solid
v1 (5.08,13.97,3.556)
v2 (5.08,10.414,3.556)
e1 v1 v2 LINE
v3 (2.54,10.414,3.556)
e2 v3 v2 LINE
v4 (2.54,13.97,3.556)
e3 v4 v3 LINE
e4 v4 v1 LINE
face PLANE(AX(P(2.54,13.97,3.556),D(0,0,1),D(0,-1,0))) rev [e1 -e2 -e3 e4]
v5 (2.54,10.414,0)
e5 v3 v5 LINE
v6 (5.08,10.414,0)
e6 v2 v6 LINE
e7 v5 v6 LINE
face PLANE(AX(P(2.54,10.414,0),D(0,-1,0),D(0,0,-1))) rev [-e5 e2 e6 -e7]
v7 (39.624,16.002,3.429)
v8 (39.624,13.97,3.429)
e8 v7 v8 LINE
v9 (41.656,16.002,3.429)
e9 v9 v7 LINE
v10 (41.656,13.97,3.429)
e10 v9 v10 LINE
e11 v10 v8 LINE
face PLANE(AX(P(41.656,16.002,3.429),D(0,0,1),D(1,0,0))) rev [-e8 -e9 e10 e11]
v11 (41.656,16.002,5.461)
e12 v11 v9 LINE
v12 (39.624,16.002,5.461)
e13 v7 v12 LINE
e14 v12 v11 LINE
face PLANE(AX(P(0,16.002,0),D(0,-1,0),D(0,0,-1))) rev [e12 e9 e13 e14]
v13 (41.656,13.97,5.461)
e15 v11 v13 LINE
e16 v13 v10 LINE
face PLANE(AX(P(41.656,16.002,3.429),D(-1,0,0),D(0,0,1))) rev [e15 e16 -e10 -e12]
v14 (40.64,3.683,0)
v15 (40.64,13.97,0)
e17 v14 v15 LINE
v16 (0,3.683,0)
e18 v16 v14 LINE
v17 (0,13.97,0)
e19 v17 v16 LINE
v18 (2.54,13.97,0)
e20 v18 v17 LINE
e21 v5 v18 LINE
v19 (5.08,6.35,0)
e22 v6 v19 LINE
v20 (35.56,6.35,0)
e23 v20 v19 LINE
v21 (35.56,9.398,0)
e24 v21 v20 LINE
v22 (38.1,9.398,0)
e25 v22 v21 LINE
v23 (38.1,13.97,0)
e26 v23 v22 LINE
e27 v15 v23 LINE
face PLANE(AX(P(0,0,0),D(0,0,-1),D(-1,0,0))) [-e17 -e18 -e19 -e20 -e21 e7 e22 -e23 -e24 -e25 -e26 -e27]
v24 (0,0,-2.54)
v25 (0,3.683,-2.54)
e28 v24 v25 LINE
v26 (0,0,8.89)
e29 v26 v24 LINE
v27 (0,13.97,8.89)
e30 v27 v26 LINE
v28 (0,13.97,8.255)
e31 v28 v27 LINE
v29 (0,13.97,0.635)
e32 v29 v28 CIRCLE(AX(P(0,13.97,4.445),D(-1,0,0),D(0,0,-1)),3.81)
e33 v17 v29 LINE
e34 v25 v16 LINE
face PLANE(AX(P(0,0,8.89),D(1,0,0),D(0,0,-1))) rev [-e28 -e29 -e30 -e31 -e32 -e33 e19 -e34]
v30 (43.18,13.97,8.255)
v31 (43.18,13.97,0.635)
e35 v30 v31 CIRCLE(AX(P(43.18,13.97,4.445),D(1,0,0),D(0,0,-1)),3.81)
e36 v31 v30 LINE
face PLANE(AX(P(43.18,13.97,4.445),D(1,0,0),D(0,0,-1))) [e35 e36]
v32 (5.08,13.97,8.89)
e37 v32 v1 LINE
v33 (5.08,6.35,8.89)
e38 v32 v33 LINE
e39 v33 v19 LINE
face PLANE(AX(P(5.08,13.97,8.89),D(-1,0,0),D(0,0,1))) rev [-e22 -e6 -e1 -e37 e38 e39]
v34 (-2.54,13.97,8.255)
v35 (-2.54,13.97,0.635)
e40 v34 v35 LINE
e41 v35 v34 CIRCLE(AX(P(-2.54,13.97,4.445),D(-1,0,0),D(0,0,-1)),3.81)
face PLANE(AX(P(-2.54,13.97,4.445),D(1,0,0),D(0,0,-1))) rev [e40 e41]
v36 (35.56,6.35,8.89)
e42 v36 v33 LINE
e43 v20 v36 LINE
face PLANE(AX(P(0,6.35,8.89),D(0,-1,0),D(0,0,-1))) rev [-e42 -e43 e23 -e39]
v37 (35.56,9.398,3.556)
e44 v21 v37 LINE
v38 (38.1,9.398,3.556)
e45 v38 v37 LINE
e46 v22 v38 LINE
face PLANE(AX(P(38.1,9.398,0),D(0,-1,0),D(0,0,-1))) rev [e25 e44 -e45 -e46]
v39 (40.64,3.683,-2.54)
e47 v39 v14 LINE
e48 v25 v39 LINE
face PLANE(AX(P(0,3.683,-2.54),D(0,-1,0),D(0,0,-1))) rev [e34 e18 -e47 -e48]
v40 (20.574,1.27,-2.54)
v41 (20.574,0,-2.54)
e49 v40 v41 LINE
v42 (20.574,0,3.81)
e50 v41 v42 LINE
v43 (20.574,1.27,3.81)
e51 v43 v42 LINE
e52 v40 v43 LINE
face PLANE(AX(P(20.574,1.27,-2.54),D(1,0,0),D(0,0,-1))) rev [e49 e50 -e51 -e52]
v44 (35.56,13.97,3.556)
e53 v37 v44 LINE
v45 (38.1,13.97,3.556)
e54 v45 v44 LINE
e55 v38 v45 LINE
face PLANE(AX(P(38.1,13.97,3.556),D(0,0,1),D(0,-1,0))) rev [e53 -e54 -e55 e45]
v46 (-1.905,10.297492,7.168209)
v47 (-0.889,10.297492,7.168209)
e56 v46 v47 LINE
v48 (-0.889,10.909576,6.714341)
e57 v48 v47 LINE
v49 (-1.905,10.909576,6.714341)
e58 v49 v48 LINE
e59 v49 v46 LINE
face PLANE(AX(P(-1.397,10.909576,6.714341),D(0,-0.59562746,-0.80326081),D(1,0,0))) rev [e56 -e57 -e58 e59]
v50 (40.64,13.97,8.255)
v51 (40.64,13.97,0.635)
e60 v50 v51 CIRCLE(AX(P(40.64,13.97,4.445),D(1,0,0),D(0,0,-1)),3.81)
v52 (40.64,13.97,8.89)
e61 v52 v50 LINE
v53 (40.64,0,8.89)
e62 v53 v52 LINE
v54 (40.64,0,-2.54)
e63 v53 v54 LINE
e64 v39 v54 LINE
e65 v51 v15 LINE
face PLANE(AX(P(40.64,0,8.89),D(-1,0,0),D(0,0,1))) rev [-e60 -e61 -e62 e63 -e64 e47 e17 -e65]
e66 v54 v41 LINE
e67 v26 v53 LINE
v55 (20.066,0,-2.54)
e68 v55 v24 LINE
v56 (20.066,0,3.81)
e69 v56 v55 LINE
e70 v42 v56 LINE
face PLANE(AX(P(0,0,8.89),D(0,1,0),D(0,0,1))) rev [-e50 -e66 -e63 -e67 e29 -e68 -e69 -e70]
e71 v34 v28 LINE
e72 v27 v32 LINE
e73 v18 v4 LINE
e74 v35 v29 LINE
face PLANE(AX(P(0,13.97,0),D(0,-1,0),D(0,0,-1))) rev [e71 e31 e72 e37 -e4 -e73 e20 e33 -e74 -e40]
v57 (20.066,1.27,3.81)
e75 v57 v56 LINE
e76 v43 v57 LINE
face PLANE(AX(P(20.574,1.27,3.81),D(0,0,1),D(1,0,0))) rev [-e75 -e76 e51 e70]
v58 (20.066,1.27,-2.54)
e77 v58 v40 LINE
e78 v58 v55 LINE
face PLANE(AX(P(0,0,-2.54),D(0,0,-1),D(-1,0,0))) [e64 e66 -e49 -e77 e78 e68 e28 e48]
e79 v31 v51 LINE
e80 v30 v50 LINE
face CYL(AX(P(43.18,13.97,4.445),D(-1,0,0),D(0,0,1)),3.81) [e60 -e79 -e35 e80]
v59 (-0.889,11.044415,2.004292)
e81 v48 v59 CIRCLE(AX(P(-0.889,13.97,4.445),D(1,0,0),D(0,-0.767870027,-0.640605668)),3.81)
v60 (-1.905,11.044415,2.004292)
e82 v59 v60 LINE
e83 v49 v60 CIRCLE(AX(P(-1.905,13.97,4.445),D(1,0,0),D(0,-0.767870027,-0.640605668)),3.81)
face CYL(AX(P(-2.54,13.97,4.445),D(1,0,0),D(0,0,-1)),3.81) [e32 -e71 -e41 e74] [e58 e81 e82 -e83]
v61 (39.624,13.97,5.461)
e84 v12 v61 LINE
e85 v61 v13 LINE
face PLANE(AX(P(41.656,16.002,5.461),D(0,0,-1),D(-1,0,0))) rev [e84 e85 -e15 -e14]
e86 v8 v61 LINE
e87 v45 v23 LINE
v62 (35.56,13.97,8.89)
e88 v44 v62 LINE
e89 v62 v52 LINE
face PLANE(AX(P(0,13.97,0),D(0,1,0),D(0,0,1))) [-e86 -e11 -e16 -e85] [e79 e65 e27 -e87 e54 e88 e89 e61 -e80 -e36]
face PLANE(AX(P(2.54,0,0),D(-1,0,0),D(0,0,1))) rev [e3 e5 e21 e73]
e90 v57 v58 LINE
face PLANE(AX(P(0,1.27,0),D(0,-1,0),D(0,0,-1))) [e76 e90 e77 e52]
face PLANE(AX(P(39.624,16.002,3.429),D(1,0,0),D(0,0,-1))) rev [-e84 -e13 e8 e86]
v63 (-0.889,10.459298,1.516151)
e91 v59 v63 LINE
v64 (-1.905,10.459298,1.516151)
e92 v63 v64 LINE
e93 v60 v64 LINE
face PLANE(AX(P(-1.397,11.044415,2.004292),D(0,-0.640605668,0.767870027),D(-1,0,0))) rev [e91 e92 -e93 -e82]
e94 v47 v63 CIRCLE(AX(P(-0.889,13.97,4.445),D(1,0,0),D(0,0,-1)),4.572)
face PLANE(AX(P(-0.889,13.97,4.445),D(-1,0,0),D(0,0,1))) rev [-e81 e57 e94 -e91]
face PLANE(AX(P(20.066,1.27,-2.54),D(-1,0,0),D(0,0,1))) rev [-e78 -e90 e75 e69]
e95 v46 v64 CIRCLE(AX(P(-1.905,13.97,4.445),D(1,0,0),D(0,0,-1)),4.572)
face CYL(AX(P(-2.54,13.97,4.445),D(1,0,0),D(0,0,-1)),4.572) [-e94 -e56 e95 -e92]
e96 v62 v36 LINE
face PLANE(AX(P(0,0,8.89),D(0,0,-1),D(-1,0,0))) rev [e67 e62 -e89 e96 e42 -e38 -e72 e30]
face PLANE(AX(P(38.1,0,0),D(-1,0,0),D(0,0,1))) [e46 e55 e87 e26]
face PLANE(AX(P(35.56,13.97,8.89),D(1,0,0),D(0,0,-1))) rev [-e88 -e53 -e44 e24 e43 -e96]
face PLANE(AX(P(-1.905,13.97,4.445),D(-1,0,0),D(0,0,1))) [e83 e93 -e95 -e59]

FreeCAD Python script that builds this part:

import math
import FreeCAD as App
import Part
import Sketcher
from FreeCAD import Vector
Q = App.Units.Quantity

doc = App.newDocument("Part")
body = doc.addObject("PartDesign::Body", "Body")

sketch1 = body.newObject("Sketcher::SketchObject", "Sketch")
sketch1.AttachmentSupport = (doc.getObject("XY_Plane"), [""])
sketch1.MapMode = "FlatFace"
sketch1.addGeometry([
    Part.LineSegment(Vector(0, 6.35, 0), Vector(0, 0, 0)),
    Part.LineSegment(Vector(0, 0, 0), Vector(40.64, 0, 0)),
    Part.LineSegment(Vector(40.64, 0, 0), Vector(40.64, 6.35, 0)),
    Part.LineSegment(Vector(40.64, 6.35, 0), Vector(0, 6.35, 0)),
], False)
sketch1.addConstraint([
    Sketcher.Constraint("Coincident", 0, 2, 1, 1),
    Sketcher.Constraint("Coincident", 1, 2, 2, 1),
    Sketcher.Constraint("Coincident", 2, 2, 3, 1),
    Sketcher.Constraint("Coincident", 3, 2, 0, 1),
    Sketcher.Constraint("Vertical", 0),
    Sketcher.Constraint("Horizontal", 1),
    Sketcher.Constraint("Vertical", 2),
    Sketcher.Constraint("Horizontal", 3),
    Sketcher.Constraint("Coincident", 0, 2, -1, 1),
    Sketcher.Constraint("DistanceX", 1, 1, 1, 2, Q("1.6 in")),
    Sketcher.Constraint("DistanceY", 0, 2, 0, 1, Q("0.25 in")),
])
pad1 = body.newObject("PartDesign::Pad", "Pad")
pad1.Profile = sketch1
pad1.Length = Q("0.35 in")

sketch2 = body.newObject("Sketcher::SketchObject", "Sketch001")
sketch2.AttachmentSupport = (doc.getObject("XZ_Plane"), [""])
sketch2.MapMode = "FlatFace"
sketch2.AttachmentOffset = App.Placement(Vector(0, 0, -0.25 * 25.4), App.Rotation())
sketch2.addGeometry([
    Part.LineSegment(Vector(0, 0, 0), Vector(0, 8.89, 0)),
    Part.LineSegment(Vector(0, 8.89, 0), Vector(5.08, 8.89, 0)),
    Part.LineSegment(Vector(5.08, 8.89, 0), Vector(5.08, 0, 0)),
    Part.LineSegment(Vector(5.08, 0, 0), Vector(0, 0, 0)),
], False)
sketch2.addConstraint([
    Sketcher.Constraint("Coincident", 0, 2, 1, 1),
    Sketcher.Constraint("Coincident", 1, 2, 2, 1),
    Sketcher.Constraint("Coincident", 2, 2, 3, 1),
    Sketcher.Constraint("Coincident", 3, 2, 0, 1),
    Sketcher.Constraint("Vertical", 0),
    Sketcher.Constraint("Horizontal", 1),
    Sketcher.Constraint("Vertical", 2),
    Sketcher.Constraint("Horizontal", 3),
    Sketcher.Constraint("Coincident", 3, 2, -1, 1),
    Sketcher.Constraint("DistanceX", 1, 1, 1, 2, Q("0.2 in")),
    Sketcher.Constraint("DistanceY", 0, 1, 0, 2, Q("0.35 in")),
])
pad2 = body.newObject("PartDesign::Pad", "Pad001")
pad2.Profile = sketch2
pad2.Length = Q("0.3 in")
pad2.Reversed = True

sketch3 = body.newObject("Sketcher::SketchObject", "Sketch002")
sketch3.AttachmentSupport = (doc.getObject("XZ_Plane"), [""])
sketch3.MapMode = "FlatFace"
sketch3.AttachmentOffset = App.Placement(Vector(0, 0, -0.25 * 25.4), App.Rotation())
sketch3.addGeometry([
    Part.LineSegment(Vector(35.56, 0, 0), Vector(35.56, 8.89, 0)),
    Part.LineSegment(Vector(35.56, 8.89, 0), Vector(40.64, 8.89, 0)),
    Part.LineSegment(Vector(40.64, 8.89, 0), Vector(40.64, 0, 0)),
    Part.LineSegment(Vector(40.64, 0, 0), Vector(35.56, 0, 0)),
], False)
sketch3.addConstraint([
    Sketcher.Constraint("Coincident", 0, 2, 1, 1),
    Sketcher.Constraint("Coincident", 1, 2, 2, 1),
    Sketcher.Constraint("Coincident", 2, 2, 3, 1),
    Sketcher.Constraint("Coincident", 3, 2, 0, 1),
    Sketcher.Constraint("Vertical", 0),
    Sketcher.Constraint("Horizontal", 1),
    Sketcher.Constraint("Vertical", 2),
    Sketcher.Constraint("Horizontal", 3),
    Sketcher.Constraint("PointOnObject", 2, 2, -1),
    Sketcher.Constraint("DistanceX", 1, 1, 1, 2, Q("0.2 in")),
    Sketcher.Constraint("DistanceY", 0, 1, 0, 2, Q("0.35 in")),
    Sketcher.Constraint("DistanceX", -1, 1, 0, 2, Q("1.4 in")),
])
pad3 = body.newObject("PartDesign::Pad", "Pad002")
pad3.Profile = sketch3
pad3.Length = Q("0.3 in")
pad3.Reversed = True

sketch4 = body.newObject("Sketcher::SketchObject", "Sketch003")
sketch4.AttachmentSupport = (doc.getObject("YZ_Plane"), [""])
sketch4.MapMode = "FlatFace"
sketch4.AttachmentOffset = App.Placement(Vector(0, 0, 0.2 * 25.4), App.Rotation())
sketch4.addGeometry([
    Part.LineSegment(Vector(13.97, 3.556, 0), Vector(10.414, 3.556, 0)),
    Part.LineSegment(Vector(10.414, 3.556, 0), Vector(10.414, 0, 0)),
    Part.LineSegment(Vector(10.414, 0, 0), Vector(13.97, 0, 0)),
    Part.LineSegment(Vector(13.97, 0, 0), Vector(13.97, 3.556, 0)),
], False)
sketch4.addConstraint([
    Sketcher.Constraint("Coincident", 0, 2, 1, 1),
    Sketcher.Constraint("Coincident", 1, 2, 2, 1),
    Sketcher.Constraint("Coincident", 2, 2, 3, 1),
    Sketcher.Constraint("Coincident", 3, 2, 0, 1),
    Sketcher.Constraint("Horizontal", 0),
    Sketcher.Constraint("Vertical", 1),
    Sketcher.Constraint("Horizontal", 2),
    Sketcher.Constraint("Vertical", 3),
    Sketcher.Constraint("PointOnObject", 1, 2, -1),
    Sketcher.Constraint("Equal", 2, 1),
    Sketcher.Constraint("DistanceX", 0, 2, 0, 1, Q("0.14 in")),
    Sketcher.Constraint("DistanceX", -1, 1, 0, 2, Q("0.41 in")),
])
pocket1 = body.newObject("PartDesign::Pocket", "Pocket")
pocket1.Profile = sketch4
pocket1.Length = Q("0.1 in")

sketch5 = body.newObject("Sketcher::SketchObject", "Sketch004")
sketch5.AttachmentSupport = (doc.getObject("YZ_Plane"), [""])
sketch5.MapMode = "FlatFace"
sketch5.addGeometry([
    Part.LineSegment(Vector(13.97, 8.255, 0), Vector(13.97, 0.635, 0)),
    Part.ArcOfCircle(Part.Circle(Vector(13.97, 4.445, 0), Vector(0, 0, 1), 3.81), math.radians(90), math.radians(270)),
], False)
sketch5.addConstraint([
    Sketcher.Constraint("Coincident", 0, 1, 1, 1),
    Sketcher.Constraint("Coincident", 1, 2, 0, 2),
    Sketcher.Constraint("Vertical", 0),
    Sketcher.Constraint("Vertical", 1, 3, 0, 1),
    Sketcher.Constraint("Radius", 1, Q("0.15 in")),
    Sketcher.Constraint("DistanceX", -1, 1, 1, 3, Q("0.55 in")),
    Sketcher.Constraint("DistanceY", -1, 1, 1, 3, Q("0.175 in")),
])
pad4 = body.newObject("PartDesign::Pad", "Pad003")
pad4.Profile = sketch5
pad4.Length = Q("0.1 in")
pad4.Reversed = True

sketch6 = body.newObject("Sketcher::SketchObject", "Sketch005")
sketch6.AttachmentSupport = (doc.getObject("XY_Plane"), [""])
sketch6.MapMode = "FlatFace"
sketch6.addGeometry([
    Part.LineSegment(Vector(40.64, 3.683, 0), Vector(40.64, 0, 0)),
    Part.LineSegment(Vector(40.64, 0, 0), Vector(0, 0, 0)),
    Part.LineSegment(Vector(0, 0, 0), Vector(0, 3.683, 0)),
    Part.LineSegment(Vector(0, 3.683, 0), Vector(40.64, 3.683, 0)),
], False)
sketch6.addConstraint([
    Sketcher.Constraint("Coincident", 0, 2, 1, 1),
    Sketcher.Constraint("Coincident", 1, 2, 2, 1),
    Sketcher.Constraint("Coincident", 2, 2, 3, 1),
    Sketcher.Constraint("Coincident", 3, 2, 0, 1),
    Sketcher.Constraint("Vertical", 0),
    Sketcher.Constraint("Horizontal", 1),
    Sketcher.Constraint("Vertical", 2),
    Sketcher.Constraint("Horizontal", 3),
    Sketcher.Constraint("Coincident", 1, 2, -1, 1),
    Sketcher.Constraint("DistanceX", 1, 2, 1, 1, Q("1.6 in")),
    Sketcher.Constraint("DistanceY", 0, 2, 0, 1, Q("0.145 in")),
])
pad5 = body.newObject("PartDesign::Pad", "Pad004")
pad5.Profile = sketch6
pad5.Length = Q("0.1 in")
pad5.Reversed = True

sketch7 = body.newObject("Sketcher::SketchObject", "Sketch006")
sketch7.AttachmentSupport = (doc.getObject("YZ_Plane"), [""])
sketch7.MapMode = "FlatFace"
sketch7.AttachmentOffset = App.Placement(Vector(0, 0, 1.4 * 25.4), App.Rotation())
sketch7.addGeometry([
    Part.LineSegment(Vector(13.97, 0, 0), Vector(9.398, 0, 0)),
    Part.LineSegment(Vector(9.398, 0, 0), Vector(9.398, 3.556, 0)),
    Part.LineSegment(Vector(9.398, 3.556, 0), Vector(13.97, 3.556, 0)),
    Part.LineSegment(Vector(13.97, 3.556, 0), Vector(13.97, 0, 0)),
], False)
sketch7.addConstraint([
    Sketcher.Constraint("Coincident", 0, 2, 1, 1),
    Sketcher.Constraint("Coincident", 1, 2, 2, 1),
    Sketcher.Constraint("Coincident", 2, 2, 3, 1),
    Sketcher.Constraint("Coincident", 3, 2, 0, 1),
    Sketcher.Constraint("Horizontal", 0),
    Sketcher.Constraint("Vertical", 1),
    Sketcher.Constraint("Horizontal", 2),
    Sketcher.Constraint("Vertical", 3),
    Sketcher.Constraint("PointOnObject", 0, 2, -1),
    Sketcher.Constraint("DistanceX", 0, 2, 0, 1, Q("0.18 in")),
    Sketcher.Constraint("DistanceY", 1, 1, 1, 2, Q("0.14 in")),
    Sketcher.Constraint("DistanceX", -1, 1, 0, 2, Q("0.37 in")),
])
pocket2 = body.newObject("PartDesign::Pocket", "Pocket001")
pocket2.Profile = sketch7
pocket2.Length = Q("0.1 in")
pocket2.Reversed = True

sketch8 = body.newObject("Sketcher::SketchObject", "Sketch007")
sketch8.AttachmentSupport = (doc.getObject("YZ_Plane"), [""])
sketch8.MapMode = "FlatFace"
sketch8.AttachmentOffset = App.Placement(Vector(0, 0, 1.7 * 25.4), App.Rotation())
sketch8.addGeometry([
    Part.LineSegment(Vector(13.97, 0.635, 0), Vector(13.97, 8.255, 0)),
    Part.ArcOfCircle(Part.Circle(Vector(13.97, 4.445, 0), Vector(0, 0, 1), 3.81), math.radians(90), math.radians(270)),
], False)
sketch8.addConstraint([
    Sketcher.Constraint("Coincident", 0, 1, 1, 2),
    Sketcher.Constraint("Coincident", 1, 1, 0, 2),
    Sketcher.Constraint("Vertical", 0),
    Sketcher.Constraint("Vertical", 1, 3, 0, 1),
    Sketcher.Constraint("Radius", 1, Q("0.15 in")),
    Sketcher.Constraint("DistanceX", -1, 1, 1, 3, Q("0.55 in")),
    Sketcher.Constraint("DistanceY", -1, 1, 1, 3, Q("0.175 in")),
])
pad6 = body.newObject("PartDesign::Pad", "Pad005")
pad6.Profile = sketch8
pad6.Length = Q("0.1 in")
pad6.Reversed = True

sketch9 = body.newObject("Sketcher::SketchObject", "Sketch008")
sketch9.Placement = App.Placement(Vector(0, 13.97, 4.445), App.Rotation(Vector(0, -0.80326081, 0.59562746), Vector(1, 0, 0), Vector(0, 0.59562746, 0.80326081), "ZXY"))
sketch9.addGeometry([
    Part.LineSegment(Vector(3.81, -0.889, 0), Vector(3.81, -1.905, 0)),
    Part.LineSegment(Vector(3.81, -1.905, 0), Vector(4.572, -1.905, 0)),
    Part.LineSegment(Vector(4.572, -1.905, 0), Vector(4.572, -0.889, 0)),
    Part.LineSegment(Vector(4.572, -0.889, 0), Vector(3.81, -0.889, 0)),
], False)
sketch9.addConstraint([
    Sketcher.Constraint("Coincident", 0, 2, 1, 1),
    Sketcher.Constraint("Coincident", 1, 2, 2, 1),
    Sketcher.Constraint("Coincident", 2, 2, 3, 1),
    Sketcher.Constraint("Coincident", 3, 2, 0, 1),
    Sketcher.Constraint("Vertical", 0),
    Sketcher.Constraint("Horizontal", 1),
    Sketcher.Constraint("Vertical", 2),
    Sketcher.Constraint("Horizontal", 3),
    Sketcher.Constraint("DistanceX", 1, 1, 1, 2, Q("0.03 in")),
    Sketcher.Constraint("DistanceY", 0, 2, 0, 1, Q("0.04 in")),
    Sketcher.Constraint("DistanceX", -1, 1, 0, 2, Q("0.15 in")),
    Sketcher.Constraint("DistanceY", 0, 2, -1, 1, Q("0.075 in")),
])
revolution = body.newObject("PartDesign::Revolution", "Revolution")
revolution.Profile = sketch9
revolution.ReferenceAxis = (sketch9, ["V_Axis"])
revolution.Angle = 76.394373

sketch10 = body.newObject("Sketcher::SketchObject", "Sketch009")
sketch10.AttachmentSupport = (doc.getObject("XZ_Plane"), [""])
sketch10.MapMode = "FlatFace"
sketch10.addGeometry([
    Part.LineSegment(Vector(20.066, 3.81, 0), Vector(20.066, -2.54, 0)),
    Part.LineSegment(Vector(20.066, -2.54, 0), Vector(20.574, -2.54, 0)),
    Part.LineSegment(Vector(20.574, -2.54, 0), Vector(20.574, 3.81, 0)),
    Part.LineSegment(Vector(20.574, 3.81, 0), Vector(20.066, 3.81, 0)),
], False)
sketch10.addConstraint([
    Sketcher.Constraint("Coincident", 0, 2, 1, 1),
    Sketcher.Constraint("Coincident", 1, 2, 2, 1),
    Sketcher.Constraint("Coincident", 2, 2, 3, 1),
    Sketcher.Constraint("Coincident", 3, 2, 0, 1),
    Sketcher.Constraint("Vertical", 0),
    Sketcher.Constraint("Horizontal", 1),
    Sketcher.Constraint("Vertical", 2),
    Sketcher.Constraint("Horizontal", 3),
    Sketcher.Constraint("DistanceX", 1, 1, 1, 2, Q("0.02 in")),
    Sketcher.Constraint("DistanceY", 0, 2, 0, 1, Q("0.25 in")),
    Sketcher.Constraint("DistanceY", 0, 2, -1, 1, Q("0.1 in")),
    Sketcher.Constraint("DistanceX", -1, 1, 0, 2, Q("0.79 in")),
])
pocket3 = body.newObject("PartDesign::Pocket", "Pocket002")
pocket3.Profile = sketch10
pocket3.Length = Q("0.05 in")

sketch11 = body.newObject("Sketcher::SketchObject", "Sketch010")
sketch11.AttachmentSupport = (doc.getObject("XZ_Plane"), [""])
sketch11.MapMode = "FlatFace"
sketch11.AttachmentOffset = App.Placement(Vector(0, 0, -0.55 * 25.4), App.Rotation())
sketch11.addGeometry([
    Part.LineSegment(Vector(39.624, 3.429, 0), Vector(39.624, 5.461, 0)),
    Part.LineSegment(Vector(39.624, 5.461, 0), Vector(41.656, 5.461, 0)),
    Part.LineSegment(Vector(41.656, 5.461, 0), Vector(41.656, 3.429, 0)),
    Part.LineSegment(Vector(41.656, 3.429, 0), Vector(39.624, 3.429, 0)),
], False)
sketch11.addConstraint([
    Sketcher.Constraint("Coincident", 0, 2, 1, 1),
    Sketcher.Constraint("Coincident", 1, 2, 2, 1),
    Sketcher.Constraint("Coincident", 2, 2, 3, 1),
    Sketcher.Constraint("Coincident", 3, 2, 0, 1),
    Sketcher.Constraint("Vertical", 0),
    Sketcher.Constraint("Horizontal", 1),
    Sketcher.Constraint("Vertical", 2),
    Sketcher.Constraint("Horizontal", 3),
    Sketcher.Constraint("Equal", 3, 0),
    Sketcher.Constraint("DistanceX", 1, 1, 1, 2, Q("0.08 in")),
    Sketcher.Constraint("DistanceX", -1, 1, 0, 2, Q("1.56 in")),
    Sketcher.Constraint("DistanceY", -1, 1, 0, 2, Q("0.215 in")),
])
pad7 = body.newObject("PartDesign::Pad", "Pad006")
pad7.Profile = sketch11
pad7.Length = Q("0.08 in")
pad7.Reversed = True

doc.recompute()
